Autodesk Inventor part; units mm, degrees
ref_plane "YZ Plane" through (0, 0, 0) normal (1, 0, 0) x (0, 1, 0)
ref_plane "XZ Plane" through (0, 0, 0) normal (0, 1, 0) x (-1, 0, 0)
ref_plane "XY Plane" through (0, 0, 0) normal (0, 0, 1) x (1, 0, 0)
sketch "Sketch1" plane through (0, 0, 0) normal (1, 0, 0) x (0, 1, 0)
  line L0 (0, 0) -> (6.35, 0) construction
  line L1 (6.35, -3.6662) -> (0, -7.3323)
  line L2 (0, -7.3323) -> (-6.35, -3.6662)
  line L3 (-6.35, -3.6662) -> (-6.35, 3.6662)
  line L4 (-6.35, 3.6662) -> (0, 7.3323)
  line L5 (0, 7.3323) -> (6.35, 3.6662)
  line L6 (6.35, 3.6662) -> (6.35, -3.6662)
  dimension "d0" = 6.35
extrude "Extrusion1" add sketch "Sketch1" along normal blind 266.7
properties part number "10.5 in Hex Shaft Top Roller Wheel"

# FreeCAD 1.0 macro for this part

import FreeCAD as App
import Part
import Sketcher
Q = App.Units.Quantity


def add_polygon(sketch, points):
    """Adds a closed chain of lines whose ends are joined by coincident constraints."""
    first, n = sketch.GeometryCount, len(points)
    for a, b in zip(points, points[1:] + points[:1]):
        sketch.addGeometry(Part.LineSegment(App.Vector(*a, 0), App.Vector(*b, 0)), False)
    for i in range(n):
        sketch.addConstraint(Sketcher.Constraint("Coincident", first + i, 2, first + (i + 1) % n, 1))

doc = App.newDocument("Part")
body = doc.addObject("PartDesign::Body", "Body")

# Sketch on YZ plane
sketch1 = doc.addObject("Sketcher::SketchObject", "Sketch")
body.addObject(sketch1)
sketch1.AttachmentSupport = (doc.YZ_Plane, [""])
sketch1.MapMode = "FlatFace"
add_polygon(sketch1, [(0, -7.3323), (6.35, -3.6662), (6.35, 3.6662), (0, 7.3323), (-6.35, 3.6662), (-6.35, -3.6662)])  # lines 0-5
sketch1.addConstraint([
    Sketcher.Constraint("Vertical", 1),
    Sketcher.Constraint("Vertical", 4),
    Sketcher.Constraint("Symmetric", 0, 2, 3, 2, -1, 1),
    Sketcher.Constraint("Symmetric", 2, 2, 5, 2, -1, 1),
    Sketcher.Constraint("PointOnObject", 2, 2, -2),
    Sketcher.Constraint("Parallel", 2, 5),
    Sketcher.Constraint("Horizontal", 1, 2, 3, 2),
    Sketcher.Constraint("DistanceX", -1, 1, 0, 2, Q("0.25 in")),
    Sketcher.Constraint("Angle", 0, Q("29.9995 deg")),
    Sketcher.Constraint("DistanceY", 0, 2, 2, 2, Q("0.433 in")),
])
pad1 = doc.addObject("PartDesign::Pad", "Pad")
body.addObject(pad1)
pad1.Profile = sketch1
pad1.Length = Q("10.5 in")

doc.recompute()
